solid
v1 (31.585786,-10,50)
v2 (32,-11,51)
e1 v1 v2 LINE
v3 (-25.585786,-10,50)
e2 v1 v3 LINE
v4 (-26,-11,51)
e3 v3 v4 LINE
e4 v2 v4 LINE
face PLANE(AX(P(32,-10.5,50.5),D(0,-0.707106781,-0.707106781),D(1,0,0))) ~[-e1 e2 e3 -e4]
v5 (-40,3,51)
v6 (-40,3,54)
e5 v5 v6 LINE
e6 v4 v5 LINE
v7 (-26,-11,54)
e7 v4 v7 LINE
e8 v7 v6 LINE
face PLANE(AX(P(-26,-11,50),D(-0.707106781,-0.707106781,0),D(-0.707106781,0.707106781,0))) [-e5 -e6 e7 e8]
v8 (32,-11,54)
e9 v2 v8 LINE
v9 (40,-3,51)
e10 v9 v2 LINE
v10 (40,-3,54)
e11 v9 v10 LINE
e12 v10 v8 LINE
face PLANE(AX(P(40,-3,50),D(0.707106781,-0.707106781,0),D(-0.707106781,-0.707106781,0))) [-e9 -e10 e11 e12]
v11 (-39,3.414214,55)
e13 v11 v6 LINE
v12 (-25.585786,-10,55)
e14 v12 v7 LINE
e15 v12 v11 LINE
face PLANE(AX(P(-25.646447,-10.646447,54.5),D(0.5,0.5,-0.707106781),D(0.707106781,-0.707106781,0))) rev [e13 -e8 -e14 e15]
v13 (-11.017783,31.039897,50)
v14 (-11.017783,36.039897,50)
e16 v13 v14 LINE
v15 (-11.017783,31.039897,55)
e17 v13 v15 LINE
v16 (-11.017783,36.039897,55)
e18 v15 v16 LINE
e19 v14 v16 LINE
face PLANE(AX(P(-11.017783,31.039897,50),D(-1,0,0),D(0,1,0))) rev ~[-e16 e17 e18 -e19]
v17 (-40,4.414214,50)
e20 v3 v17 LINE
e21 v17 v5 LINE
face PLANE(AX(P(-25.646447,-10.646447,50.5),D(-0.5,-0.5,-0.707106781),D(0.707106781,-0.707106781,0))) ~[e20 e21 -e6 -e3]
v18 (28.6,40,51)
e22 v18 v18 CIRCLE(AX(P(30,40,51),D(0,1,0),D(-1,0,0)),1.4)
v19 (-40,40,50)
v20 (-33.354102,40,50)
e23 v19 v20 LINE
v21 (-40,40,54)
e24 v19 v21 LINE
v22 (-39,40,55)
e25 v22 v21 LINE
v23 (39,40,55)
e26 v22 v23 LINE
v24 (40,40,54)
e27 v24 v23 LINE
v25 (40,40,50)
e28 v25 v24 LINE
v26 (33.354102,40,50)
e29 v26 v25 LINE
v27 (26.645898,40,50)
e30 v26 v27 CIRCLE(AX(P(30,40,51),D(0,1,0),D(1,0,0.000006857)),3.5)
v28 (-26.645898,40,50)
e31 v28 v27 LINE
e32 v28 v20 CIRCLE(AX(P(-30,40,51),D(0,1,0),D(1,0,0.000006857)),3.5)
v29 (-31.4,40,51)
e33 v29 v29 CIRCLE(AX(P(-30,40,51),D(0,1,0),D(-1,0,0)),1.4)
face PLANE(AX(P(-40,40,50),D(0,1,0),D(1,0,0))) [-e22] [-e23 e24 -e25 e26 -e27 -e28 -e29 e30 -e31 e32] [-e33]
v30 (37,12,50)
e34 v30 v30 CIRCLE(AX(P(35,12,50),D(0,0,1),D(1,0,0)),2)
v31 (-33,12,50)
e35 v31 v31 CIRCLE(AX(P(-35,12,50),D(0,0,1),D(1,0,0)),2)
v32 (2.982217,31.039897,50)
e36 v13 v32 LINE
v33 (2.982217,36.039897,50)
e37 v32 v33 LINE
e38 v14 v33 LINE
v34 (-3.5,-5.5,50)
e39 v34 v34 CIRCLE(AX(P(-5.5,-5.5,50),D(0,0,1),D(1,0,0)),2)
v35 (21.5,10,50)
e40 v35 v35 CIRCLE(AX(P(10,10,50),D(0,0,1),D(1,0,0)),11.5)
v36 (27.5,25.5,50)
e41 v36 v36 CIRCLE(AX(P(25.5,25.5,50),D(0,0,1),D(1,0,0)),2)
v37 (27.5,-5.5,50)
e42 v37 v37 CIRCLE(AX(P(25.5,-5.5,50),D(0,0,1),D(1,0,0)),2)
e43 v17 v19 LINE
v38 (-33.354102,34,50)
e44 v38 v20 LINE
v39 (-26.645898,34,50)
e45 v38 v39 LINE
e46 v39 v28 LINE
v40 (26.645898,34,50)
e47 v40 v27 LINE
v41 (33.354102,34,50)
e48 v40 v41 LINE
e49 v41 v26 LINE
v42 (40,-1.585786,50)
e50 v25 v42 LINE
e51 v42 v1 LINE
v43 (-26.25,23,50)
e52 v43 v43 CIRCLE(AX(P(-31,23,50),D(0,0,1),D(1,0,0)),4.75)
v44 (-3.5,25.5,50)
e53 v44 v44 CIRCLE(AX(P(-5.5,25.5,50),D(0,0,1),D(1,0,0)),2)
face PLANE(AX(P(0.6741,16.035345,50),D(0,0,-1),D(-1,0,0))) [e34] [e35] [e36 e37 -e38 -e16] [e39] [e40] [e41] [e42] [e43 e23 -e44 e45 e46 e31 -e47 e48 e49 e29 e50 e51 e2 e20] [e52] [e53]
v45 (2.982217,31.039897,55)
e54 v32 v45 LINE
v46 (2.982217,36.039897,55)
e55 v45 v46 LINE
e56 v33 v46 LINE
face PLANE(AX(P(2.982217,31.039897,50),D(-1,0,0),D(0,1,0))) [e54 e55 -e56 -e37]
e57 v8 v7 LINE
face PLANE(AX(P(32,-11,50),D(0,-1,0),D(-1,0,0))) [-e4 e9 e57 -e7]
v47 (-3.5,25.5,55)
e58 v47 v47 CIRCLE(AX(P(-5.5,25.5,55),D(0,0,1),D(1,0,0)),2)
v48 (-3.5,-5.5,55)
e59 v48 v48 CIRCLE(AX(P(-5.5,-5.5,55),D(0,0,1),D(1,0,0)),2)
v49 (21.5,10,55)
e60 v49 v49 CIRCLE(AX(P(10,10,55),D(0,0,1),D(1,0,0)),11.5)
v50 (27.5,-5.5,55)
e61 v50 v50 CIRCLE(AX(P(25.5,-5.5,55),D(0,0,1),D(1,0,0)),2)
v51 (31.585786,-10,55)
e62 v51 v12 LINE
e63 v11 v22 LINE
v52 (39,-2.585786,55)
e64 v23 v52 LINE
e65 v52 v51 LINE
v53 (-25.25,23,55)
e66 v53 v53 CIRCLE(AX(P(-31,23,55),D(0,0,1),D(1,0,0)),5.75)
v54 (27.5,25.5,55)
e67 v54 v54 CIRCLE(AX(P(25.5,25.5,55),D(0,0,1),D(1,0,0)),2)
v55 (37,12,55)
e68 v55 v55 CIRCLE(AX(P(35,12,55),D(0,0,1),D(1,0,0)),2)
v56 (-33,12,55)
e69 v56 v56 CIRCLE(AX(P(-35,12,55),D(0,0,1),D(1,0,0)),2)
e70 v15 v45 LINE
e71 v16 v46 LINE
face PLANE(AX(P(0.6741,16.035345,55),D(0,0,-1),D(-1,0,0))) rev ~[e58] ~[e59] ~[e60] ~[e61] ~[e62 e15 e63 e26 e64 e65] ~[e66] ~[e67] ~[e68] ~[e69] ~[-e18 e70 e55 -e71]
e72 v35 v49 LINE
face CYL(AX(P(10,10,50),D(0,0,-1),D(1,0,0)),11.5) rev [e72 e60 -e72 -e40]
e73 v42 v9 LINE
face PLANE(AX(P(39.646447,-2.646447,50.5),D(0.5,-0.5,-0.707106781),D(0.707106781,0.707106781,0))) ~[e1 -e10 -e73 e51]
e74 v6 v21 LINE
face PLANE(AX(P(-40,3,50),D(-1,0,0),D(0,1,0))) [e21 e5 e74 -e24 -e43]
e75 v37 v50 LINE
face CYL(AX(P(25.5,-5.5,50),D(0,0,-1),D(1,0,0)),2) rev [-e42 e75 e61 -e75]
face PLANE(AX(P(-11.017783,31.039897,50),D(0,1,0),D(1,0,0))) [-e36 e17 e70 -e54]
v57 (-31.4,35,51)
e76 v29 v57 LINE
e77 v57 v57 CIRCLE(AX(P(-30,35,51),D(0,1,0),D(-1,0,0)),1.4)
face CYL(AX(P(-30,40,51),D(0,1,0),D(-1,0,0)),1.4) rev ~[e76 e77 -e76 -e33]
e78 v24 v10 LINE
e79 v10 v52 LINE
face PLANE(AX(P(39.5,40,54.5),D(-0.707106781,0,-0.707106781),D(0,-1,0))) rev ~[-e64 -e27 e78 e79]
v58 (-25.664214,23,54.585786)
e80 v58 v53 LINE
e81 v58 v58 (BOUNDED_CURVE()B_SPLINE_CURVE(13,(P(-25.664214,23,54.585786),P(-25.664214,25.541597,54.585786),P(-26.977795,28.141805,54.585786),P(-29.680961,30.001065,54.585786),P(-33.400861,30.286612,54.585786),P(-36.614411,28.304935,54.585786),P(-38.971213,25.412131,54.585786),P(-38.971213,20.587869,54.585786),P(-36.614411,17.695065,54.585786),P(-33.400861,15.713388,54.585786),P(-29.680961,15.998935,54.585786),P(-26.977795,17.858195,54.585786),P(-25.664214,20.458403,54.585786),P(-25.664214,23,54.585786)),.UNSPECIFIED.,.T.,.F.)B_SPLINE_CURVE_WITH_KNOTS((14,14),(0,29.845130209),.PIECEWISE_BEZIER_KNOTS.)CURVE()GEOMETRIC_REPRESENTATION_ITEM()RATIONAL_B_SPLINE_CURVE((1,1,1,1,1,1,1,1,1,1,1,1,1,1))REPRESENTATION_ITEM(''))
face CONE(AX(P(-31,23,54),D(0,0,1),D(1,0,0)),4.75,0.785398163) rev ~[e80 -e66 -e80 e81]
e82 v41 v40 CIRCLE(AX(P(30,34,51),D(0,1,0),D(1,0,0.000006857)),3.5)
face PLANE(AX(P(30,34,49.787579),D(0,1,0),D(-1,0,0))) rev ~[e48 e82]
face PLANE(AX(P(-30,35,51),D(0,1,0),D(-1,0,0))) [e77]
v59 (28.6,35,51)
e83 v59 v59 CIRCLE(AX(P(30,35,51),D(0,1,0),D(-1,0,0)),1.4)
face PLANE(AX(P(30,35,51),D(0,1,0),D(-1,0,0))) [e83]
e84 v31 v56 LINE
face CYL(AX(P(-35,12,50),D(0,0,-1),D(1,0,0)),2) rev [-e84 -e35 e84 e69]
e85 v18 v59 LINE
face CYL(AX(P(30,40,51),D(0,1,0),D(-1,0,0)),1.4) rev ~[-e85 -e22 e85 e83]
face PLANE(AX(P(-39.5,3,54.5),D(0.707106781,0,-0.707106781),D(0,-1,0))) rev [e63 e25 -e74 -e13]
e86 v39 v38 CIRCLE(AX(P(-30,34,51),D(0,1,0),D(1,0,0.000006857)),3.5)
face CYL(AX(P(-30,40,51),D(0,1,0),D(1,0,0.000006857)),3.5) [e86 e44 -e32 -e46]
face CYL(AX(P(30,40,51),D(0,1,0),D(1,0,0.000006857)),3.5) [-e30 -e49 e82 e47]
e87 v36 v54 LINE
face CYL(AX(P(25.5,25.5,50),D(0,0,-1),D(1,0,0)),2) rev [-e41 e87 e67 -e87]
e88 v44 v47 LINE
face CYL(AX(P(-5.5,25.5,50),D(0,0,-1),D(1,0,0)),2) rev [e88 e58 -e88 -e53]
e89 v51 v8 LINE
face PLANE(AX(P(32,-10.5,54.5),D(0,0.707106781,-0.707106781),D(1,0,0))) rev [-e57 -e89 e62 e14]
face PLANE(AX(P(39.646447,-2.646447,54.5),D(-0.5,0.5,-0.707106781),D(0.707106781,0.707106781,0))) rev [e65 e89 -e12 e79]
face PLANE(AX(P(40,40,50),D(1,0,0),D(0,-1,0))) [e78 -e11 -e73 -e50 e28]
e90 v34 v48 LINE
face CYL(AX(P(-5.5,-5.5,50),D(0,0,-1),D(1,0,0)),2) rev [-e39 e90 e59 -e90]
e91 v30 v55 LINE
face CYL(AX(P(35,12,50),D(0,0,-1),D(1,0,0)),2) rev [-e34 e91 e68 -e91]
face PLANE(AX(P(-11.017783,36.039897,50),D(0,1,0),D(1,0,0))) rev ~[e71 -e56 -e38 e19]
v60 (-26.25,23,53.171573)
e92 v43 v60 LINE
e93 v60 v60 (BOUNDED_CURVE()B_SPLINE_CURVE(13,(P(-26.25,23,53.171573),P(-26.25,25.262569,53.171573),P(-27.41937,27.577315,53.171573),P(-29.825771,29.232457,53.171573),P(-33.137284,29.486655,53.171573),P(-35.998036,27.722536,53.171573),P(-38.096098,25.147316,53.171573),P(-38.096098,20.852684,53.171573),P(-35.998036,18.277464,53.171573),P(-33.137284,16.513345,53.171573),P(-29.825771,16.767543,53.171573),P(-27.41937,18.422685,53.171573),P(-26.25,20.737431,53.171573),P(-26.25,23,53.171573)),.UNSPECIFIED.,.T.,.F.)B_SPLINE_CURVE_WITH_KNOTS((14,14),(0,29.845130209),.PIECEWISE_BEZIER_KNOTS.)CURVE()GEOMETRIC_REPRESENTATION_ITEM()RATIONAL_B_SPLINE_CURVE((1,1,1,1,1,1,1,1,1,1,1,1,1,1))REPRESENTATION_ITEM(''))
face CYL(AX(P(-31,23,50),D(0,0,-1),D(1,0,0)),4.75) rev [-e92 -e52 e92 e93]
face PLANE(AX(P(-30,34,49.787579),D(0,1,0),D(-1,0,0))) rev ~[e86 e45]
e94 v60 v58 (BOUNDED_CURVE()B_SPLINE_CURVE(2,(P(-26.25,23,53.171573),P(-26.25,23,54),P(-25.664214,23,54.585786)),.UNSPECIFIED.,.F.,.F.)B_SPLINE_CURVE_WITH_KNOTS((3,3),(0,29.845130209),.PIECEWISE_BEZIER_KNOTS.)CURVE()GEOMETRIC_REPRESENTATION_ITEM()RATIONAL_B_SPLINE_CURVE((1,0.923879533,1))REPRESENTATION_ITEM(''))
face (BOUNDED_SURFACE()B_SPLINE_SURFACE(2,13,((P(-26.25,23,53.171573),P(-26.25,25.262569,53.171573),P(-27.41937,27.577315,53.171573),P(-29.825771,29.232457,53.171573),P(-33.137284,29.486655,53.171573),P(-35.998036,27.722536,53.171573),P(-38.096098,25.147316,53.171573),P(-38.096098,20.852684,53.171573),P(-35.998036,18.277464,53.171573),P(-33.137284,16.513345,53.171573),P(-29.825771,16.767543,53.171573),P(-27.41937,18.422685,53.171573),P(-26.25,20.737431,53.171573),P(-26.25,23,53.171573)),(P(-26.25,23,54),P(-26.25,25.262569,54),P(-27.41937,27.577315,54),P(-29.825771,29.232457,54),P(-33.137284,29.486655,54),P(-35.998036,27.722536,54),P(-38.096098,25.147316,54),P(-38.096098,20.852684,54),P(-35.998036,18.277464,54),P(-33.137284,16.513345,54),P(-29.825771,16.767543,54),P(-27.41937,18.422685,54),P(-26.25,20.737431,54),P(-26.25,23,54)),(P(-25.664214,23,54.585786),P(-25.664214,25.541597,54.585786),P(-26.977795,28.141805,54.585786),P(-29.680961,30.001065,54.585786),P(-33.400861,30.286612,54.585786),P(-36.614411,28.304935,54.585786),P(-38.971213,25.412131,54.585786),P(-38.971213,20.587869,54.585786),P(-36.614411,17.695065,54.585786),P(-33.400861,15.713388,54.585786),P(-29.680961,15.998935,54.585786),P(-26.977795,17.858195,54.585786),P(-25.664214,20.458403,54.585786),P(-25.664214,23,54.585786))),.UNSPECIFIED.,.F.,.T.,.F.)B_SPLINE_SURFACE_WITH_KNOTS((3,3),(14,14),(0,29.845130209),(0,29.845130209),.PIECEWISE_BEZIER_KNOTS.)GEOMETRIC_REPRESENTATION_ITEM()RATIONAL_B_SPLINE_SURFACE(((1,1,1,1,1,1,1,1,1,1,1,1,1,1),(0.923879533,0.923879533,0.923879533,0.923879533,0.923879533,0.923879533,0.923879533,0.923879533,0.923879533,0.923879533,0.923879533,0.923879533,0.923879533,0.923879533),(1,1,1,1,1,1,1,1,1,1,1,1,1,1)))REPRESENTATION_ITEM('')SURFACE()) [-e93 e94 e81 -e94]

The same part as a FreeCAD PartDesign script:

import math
import FreeCAD as App
import Part
import Sketcher
from FreeCAD import Vector
Q = App.Units.Quantity


def edges_at(feature, points):
    """Names of the edges that pass closest to the given points."""
    edges = feature.Shape.Edges
    near = lambda p: min(range(len(edges)), key=lambda i: edges[i].distToShape(Part.Vertex(*p))[0])
    return sorted({f"Edge{near(p) + 1}" for p in points})


def add_polygon(sketch, points):
    """Adds a closed chain of lines whose ends are joined by coincident constraints."""
    first, n = sketch.GeometryCount, len(points)
    for a, b in zip(points, points[1:] + points[:1]):
        sketch.addGeometry(Part.LineSegment(App.Vector(*a, 0), App.Vector(*b, 0)), False)
    for i in range(n):
        sketch.addConstraint(Sketcher.Constraint("Coincident", first + i, 2, first + (i + 1) % n, 1))

doc = App.newDocument("Part")
body = doc.addObject("PartDesign::Body", "Body")

# Sketch on XY plane
sketch1 = doc.addObject("Sketcher::SketchObject", "Sketch")
body.addObject(sketch1)
sketch1.AttachmentSupport = (doc.XY_Plane, [""])
sketch1.MapMode = "FlatFace"
add_polygon(sketch1, [(40, 40), (-40, 40), (-40, 3), (-26, -11), (32, -11), (40, -3)])  # lines 0-5
sketch1.addGeometry(Part.Circle(Vector(25.5, -5.5, 0), Vector(0, 0, 1), 2), False)  # 6
sketch1.addGeometry(Part.Circle(Vector(35, 12, 0), Vector(0, 0, 1), 2), False)  # 7
sketch1.addGeometry(Part.Circle(Vector(10, 10, 0), Vector(0, 0, 1), 11.5), False)  # 8
sketch1.addGeometry(Part.Circle(Vector(-5.5, -5.5, 0), Vector(0, 0, 1), 2), False)  # 9
sketch1.addGeometry(Part.Circle(Vector(-35, 12, 0), Vector(0, 0, 1), 2), False)  # 10
sketch1.addGeometry(Part.Circle(Vector(25.5, 25.5, 0), Vector(0, 0, 1), 2), False)  # 11
sketch1.addGeometry(Part.Circle(Vector(-31, 23, 0), Vector(0, 0, 1), 4.8), False)  # 12
sketch1.addGeometry(Part.Circle(Vector(-5.5, 25.5, 0), Vector(0, 0, 1), 2), False)  # 13
add_polygon(sketch1, [(-11, 31), (-11, 36), (3, 36), (3, 31)])  # lines 14-17
sketch1.addConstraint([
    Sketcher.Constraint("Horizontal", 0),
    Sketcher.Constraint("Vertical", 1),
    Sketcher.Constraint("Horizontal", 3),
    Sketcher.Constraint("Vertical", 5),
    Sketcher.Constraint("Vertical", 14),
    Sketcher.Constraint("Horizontal", 15),
    Sketcher.Constraint("Vertical", 16),
    Sketcher.Constraint("Horizontal", 17),
    Sketcher.Constraint("Equal", 6, 7),
    Sketcher.Constraint("Equal", 7, 9),
    Sketcher.Constraint("Equal", 9, 10),
    Sketcher.Constraint("Equal", 10, 11),
    Sketcher.Constraint("Equal", 11, 13),
    Sketcher.Constraint("Symmetric", 1, 2, 4, 2, -1, 1),
    Sketcher.Constraint("Symmetric", 7, 3, 10, 3, -2),
    Sketcher.Constraint("Perpendicular", 2, 4),
    Sketcher.Constraint("Horizontal", 6, 3, 9, 3),
    Sketcher.Constraint("Horizontal", 11, 3, 13, 3),
    Sketcher.Constraint("Vertical", 6, 3, 11, 3),
    Sketcher.Constraint("Vertical", 9, 3, 13, 3),
    Sketcher.Constraint("Diameter", 6, 4.0),
    Sketcher.Constraint("Diameter", 8, 23.0),
    Sketcher.Constraint("Diameter", 12, 9.5),
    Sketcher.Constraint("DistanceX", 0, 2, 0, 1, 80.0),
    Sketcher.Constraint("DistanceX", 3, 1, 3, 2, 58.0),
    Sketcher.Constraint("DistanceX", 15, 1, 15, 2, 14.0),
    Sketcher.Constraint("DistanceY", 1, 2, 1, 1, 37.0),
    Sketcher.Constraint("DistanceY", 5, 1, 5, 2, 43.0),
    Sketcher.Constraint("DistanceY", 14, 1, 14, 2, 5.0),
    Sketcher.Constraint("Angle", 2, Q("-45 deg")),
    Sketcher.Constraint("DistanceX", -1, 1, 7, 3, 35.0),
    Sketcher.Constraint("DistanceY", -1, 1, 7, 3, 12.0),
    Sketcher.Constraint("DistanceX", -1, 1, 8, 3, 10.0),
    Sketcher.Constraint("DistanceY", -1, 1, 8, 3, 10.0),
    Sketcher.Constraint("DistanceX", 12, 3, -1, 1, 31.0),
    Sketcher.Constraint("DistanceY", -1, 1, 12, 3, 23.0),
    Sketcher.Constraint("DistanceX", 9, 3, 6, 3, 31.0),
    Sketcher.Constraint("DistanceY", 6, 3, 11, 3, 31.0),
    Sketcher.Constraint("DistanceX", -1, 1, 6, 3, 25.5),
    Sketcher.Constraint("DistanceY", 6, 3, -1, 1, 5.5),
    Sketcher.Constraint("DistanceX", 14, 2, -1, 1, 11.017783),
    Sketcher.Constraint("DistanceY", -1, 1, 14, 2, 36.039897),
])
pad1 = doc.addObject("PartDesign::Pad", "Pad")
body.addObject(pad1)
pad1.Profile = sketch1
pad1.Length = 5

# Sketch on XZ plane
sketch2 = doc.addObject("Sketcher::SketchObject", "Sketch001")
body.addObject(sketch2)
sketch2.AttachmentSupport = (doc.XZ_Plane, [""])
sketch2.MapMode = "FlatFace"
sketch2.AttachmentOffset = App.Placement(Vector(0, 0, -40), App.Rotation())
sketch2.addGeometry([
    Part.ArcOfCircle(Part.Circle(Vector(30, 1, 0), Vector(0, 0, 1), 3.5), math.radians(180), math.radians(360)),
    Part.LineSegment(Vector(26.5, 1, 0), Vector(33.5, 1, 0)),
    Part.ArcOfCircle(Part.Circle(Vector(-30, 1, 0), Vector(0, 0, 1), 3.5), math.radians(180), math.radians(360)),
    Part.LineSegment(Vector(-33.5, 1, 0), Vector(-26.5, 1, 0)),
], False)
sketch2.addConstraint([
    Sketcher.Constraint("Coincident", 0, 1, 1, 1),
    Sketcher.Constraint("Coincident", 1, 2, 0, 2),
    Sketcher.Constraint("Coincident", 2, 1, 3, 1),
    Sketcher.Constraint("Coincident", 3, 2, 2, 2),
    Sketcher.Constraint("Horizontal", 1),
    Sketcher.Constraint("Horizontal", 3),
    Sketcher.Constraint("Equal", 0, 2),
    Sketcher.Constraint("Symmetric", 0, 3, 2, 3, -2),
    Sketcher.Constraint("Horizontal", 1, 2, 2, 1),
    Sketcher.Constraint("Radius", 0, 3.5),
    Sketcher.Constraint("DistanceX", -1, 1, 0, 3, 30.0),
    Sketcher.Constraint("DistanceY", -1, 1, 0, 3, 1.0),
    Sketcher.Constraint("DistanceY", -1, 1, 0, 1, 1.000024),
])
pad2 = doc.addObject("PartDesign::Pad", "Pad001")
body.addObject(pad2)
pad2.Profile = sketch2
pad2.Length = 6

# Sketch on XZ plane
sketch3 = doc.addObject("Sketcher::SketchObject", "Sketch002")
body.addObject(sketch3)
sketch3.AttachmentSupport = (doc.XZ_Plane, [""])
sketch3.MapMode = "FlatFace"
sketch3.AttachmentOffset = App.Placement(Vector(0, 0, -40), App.Rotation())
sketch3.addGeometry([
    Part.Circle(Vector(30, 1, 0), Vector(0, 0, 1), 1.4),
    Part.Circle(Vector(-30, 1, 0), Vector(0, 0, 1), 1.4),
], False)
sketch3.addConstraint([
    Sketcher.Constraint("Equal", 0, 1),
    Sketcher.Constraint("Symmetric", 0, 3, 1, 3, -2),
    Sketcher.Constraint("Diameter", 0, 2.8),
    Sketcher.Constraint("DistanceX", -1, 1, 0, 3, 30.0),
    Sketcher.Constraint("DistanceY", -1, 1, 0, 3, 1.0),
])
pocket1 = doc.addObject("PartDesign::Pocket", "Pocket")
body.addObject(pocket1)
pocket1.Profile = sketch3
pocket1.Length = 5
pocket1.Reversed = True
doc.recompute()

chamfer = doc.addObject("PartDesign::Chamfer", "Chamfer")
body.addObject(chamfer)
chamfer.Base = (pocket1, edges_at(pocket1, [
    (40, 18.5, 5),
    (-40, 21.5, 5),
    (-33, -4, 5),
    (3, -11, 5),
    (36, -7, 5),
]))
chamfer.Size = 1
doc.recompute()

chamfer2 = doc.addObject("PartDesign::Chamfer", "Chamfer001")
body.addObject(chamfer2)
chamfer2.Base = (chamfer, edges_at(chamfer, [(36, -7, 0), (3, -11, 0), (-33, -4, 0)]))
chamfer2.Size = 1
doc.recompute()

chamfer3 = doc.addObject("PartDesign::Chamfer", "Chamfer002")
body.addObject(chamfer3)
chamfer3.Base = (chamfer2, edges_at(chamfer2, [(-35.75, 23, 5)]))
chamfer3.Size = 1
doc.recompute()

fillet = doc.addObject("PartDesign::Fillet", "Fillet")
body.addObject(fillet)
fillet.Base = (chamfer3, edges_at(chamfer3, [(-35.75, 23, 4)]))
fillet.Radius = 2
body2 = doc.addObject("PartDesign::Body", "Body001")
doc.recompute()

body.Placement = App.Placement(Vector(0, 0, 50), App.Rotation(Vector(0, 0, 1), 0))
boolean = doc.addObject("PartDesign::Boolean", "Boolean")
body2.addObject(boolean)
boolean.Type = "Fuse"
boolean.addObjects([body])

doc.recompute()
